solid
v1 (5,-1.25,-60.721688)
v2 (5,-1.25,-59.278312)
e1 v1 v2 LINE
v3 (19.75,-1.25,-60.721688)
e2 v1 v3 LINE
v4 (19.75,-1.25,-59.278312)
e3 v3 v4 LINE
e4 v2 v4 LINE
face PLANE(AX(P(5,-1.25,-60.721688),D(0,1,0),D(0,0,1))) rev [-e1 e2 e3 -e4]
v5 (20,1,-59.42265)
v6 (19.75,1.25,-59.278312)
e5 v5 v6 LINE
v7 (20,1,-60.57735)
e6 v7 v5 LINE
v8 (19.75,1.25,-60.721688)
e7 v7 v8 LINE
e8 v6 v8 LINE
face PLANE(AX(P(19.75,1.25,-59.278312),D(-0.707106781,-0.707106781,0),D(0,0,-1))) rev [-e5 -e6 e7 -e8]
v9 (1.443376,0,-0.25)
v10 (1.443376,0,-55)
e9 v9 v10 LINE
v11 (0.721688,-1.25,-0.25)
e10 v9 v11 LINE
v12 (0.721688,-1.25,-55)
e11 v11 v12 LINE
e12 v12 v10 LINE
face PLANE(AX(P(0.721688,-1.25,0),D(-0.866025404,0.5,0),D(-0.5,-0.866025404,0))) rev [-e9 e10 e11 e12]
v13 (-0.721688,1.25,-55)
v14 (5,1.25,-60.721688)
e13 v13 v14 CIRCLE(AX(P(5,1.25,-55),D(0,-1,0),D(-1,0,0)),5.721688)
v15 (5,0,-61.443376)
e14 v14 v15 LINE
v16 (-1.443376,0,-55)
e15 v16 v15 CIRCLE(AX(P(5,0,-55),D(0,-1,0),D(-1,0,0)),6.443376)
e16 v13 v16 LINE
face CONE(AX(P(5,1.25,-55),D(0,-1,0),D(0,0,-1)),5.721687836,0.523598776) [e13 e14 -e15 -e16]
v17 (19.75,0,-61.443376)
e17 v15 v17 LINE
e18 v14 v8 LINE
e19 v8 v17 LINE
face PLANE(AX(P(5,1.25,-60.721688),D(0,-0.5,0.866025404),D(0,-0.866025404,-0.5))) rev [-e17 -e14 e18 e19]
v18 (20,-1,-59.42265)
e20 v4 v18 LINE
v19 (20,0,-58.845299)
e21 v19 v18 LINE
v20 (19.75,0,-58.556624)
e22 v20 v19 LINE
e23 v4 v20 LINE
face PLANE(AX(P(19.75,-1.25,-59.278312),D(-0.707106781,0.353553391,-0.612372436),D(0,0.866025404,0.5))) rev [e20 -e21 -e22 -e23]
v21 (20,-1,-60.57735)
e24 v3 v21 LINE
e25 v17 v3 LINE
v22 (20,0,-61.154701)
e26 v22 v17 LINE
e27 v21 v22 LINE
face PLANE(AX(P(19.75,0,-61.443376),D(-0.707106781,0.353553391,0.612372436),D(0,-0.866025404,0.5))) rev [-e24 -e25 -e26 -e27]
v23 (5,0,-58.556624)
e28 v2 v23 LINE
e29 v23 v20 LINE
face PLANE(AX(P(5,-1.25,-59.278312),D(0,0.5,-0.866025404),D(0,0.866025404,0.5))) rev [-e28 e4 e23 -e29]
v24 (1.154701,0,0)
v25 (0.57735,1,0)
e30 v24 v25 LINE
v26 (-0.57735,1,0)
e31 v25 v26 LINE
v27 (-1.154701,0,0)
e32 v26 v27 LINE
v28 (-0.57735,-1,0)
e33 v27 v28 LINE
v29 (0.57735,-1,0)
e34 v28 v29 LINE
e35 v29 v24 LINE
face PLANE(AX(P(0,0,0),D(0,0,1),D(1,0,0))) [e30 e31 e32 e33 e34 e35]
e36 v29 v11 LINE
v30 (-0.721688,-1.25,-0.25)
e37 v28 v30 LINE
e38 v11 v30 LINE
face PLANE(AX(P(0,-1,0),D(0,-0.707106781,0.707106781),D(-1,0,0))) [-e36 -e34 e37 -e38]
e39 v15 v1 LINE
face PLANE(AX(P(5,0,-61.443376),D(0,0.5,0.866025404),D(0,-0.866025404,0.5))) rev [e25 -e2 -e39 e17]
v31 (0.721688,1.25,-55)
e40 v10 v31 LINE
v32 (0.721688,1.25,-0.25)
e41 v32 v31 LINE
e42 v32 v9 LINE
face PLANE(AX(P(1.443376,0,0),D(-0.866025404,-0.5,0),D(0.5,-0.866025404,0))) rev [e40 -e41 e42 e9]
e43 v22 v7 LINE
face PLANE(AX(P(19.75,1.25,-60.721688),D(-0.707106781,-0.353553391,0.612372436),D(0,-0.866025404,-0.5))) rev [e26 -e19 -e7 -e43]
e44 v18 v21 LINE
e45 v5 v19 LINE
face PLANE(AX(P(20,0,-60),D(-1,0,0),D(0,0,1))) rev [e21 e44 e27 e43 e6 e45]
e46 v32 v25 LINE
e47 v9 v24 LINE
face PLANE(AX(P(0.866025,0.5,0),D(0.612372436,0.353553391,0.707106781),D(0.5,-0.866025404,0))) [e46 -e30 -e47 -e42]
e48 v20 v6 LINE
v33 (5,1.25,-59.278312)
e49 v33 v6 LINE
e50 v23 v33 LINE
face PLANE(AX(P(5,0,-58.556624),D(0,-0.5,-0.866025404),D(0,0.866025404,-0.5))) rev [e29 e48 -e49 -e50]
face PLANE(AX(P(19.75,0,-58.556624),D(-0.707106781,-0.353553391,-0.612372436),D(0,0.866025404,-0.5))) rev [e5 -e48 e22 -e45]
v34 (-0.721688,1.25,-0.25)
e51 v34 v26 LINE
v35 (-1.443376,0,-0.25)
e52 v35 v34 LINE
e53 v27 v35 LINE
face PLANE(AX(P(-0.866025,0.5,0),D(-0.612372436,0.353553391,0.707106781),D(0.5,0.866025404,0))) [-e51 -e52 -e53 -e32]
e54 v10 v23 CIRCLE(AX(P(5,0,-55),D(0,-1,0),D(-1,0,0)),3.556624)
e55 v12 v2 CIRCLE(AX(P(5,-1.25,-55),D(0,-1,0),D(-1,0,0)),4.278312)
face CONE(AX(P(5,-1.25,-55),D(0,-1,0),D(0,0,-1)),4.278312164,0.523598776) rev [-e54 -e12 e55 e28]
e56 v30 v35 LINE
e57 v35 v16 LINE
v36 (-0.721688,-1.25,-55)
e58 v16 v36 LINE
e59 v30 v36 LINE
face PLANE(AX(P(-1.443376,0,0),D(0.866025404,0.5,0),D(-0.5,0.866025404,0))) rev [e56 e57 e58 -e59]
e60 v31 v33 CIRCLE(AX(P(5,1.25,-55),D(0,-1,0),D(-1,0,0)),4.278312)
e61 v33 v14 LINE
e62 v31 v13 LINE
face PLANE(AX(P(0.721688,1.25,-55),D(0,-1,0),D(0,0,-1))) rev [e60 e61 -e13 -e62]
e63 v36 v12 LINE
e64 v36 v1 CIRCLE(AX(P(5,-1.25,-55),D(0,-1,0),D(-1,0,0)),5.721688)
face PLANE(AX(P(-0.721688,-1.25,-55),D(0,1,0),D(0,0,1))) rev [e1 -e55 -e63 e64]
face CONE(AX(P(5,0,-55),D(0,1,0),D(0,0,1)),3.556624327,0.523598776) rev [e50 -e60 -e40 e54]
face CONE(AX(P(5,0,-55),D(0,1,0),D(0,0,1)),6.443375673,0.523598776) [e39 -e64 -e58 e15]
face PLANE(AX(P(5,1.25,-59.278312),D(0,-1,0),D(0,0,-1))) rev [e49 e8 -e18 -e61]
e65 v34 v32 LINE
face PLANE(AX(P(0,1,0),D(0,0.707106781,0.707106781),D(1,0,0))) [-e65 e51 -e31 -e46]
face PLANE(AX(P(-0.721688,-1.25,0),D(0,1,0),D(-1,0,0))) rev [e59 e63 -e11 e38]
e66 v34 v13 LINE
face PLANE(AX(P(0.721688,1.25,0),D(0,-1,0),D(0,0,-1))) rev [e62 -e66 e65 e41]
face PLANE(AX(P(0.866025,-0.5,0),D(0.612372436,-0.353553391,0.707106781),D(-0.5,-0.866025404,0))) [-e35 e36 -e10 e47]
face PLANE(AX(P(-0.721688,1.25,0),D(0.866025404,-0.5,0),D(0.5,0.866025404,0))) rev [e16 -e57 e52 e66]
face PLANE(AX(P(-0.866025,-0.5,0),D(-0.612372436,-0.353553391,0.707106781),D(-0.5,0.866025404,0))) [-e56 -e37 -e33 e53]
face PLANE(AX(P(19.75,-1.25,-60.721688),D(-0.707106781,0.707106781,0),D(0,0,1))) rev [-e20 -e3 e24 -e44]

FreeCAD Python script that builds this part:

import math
import FreeCAD as App
import Part
import Sketcher
from FreeCAD import Vector
Q = App.Units.Quantity


def edges_at(feature, points):
    """Names of the edges that pass closest to the given points."""
    edges = feature.Shape.Edges
    near = lambda p: min(range(len(edges)), key=lambda i: edges[i].distToShape(Part.Vertex(*p))[0])
    return sorted({f"Edge{near(p) + 1}" for p in points})


def add_polygon(sketch, points):
    """Adds a closed chain of lines whose ends are joined by coincident constraints."""
    first, n = sketch.GeometryCount, len(points)
    for a, b in zip(points, points[1:] + points[:1]):
        sketch.addGeometry(Part.LineSegment(App.Vector(*a, 0), App.Vector(*b, 0)), False)
    for i in range(n):
        sketch.addConstraint(Sketcher.Constraint("Coincident", first + i, 2, first + (i + 1) % n, 1))

doc = App.newDocument("Part")
body = doc.addObject("PartDesign::Body", "Body")

sketch1 = body.newObject("Sketcher::SketchObject", "Sketch")
sketch1.AttachmentSupport = (doc.getObject("XY_Plane"), [""])
sketch1.MapMode = "FlatFace"
add_polygon(sketch1, [(0.7, 1.2), (-0.7, 1.2), (-1.4, 0), (-0.7, -1.2), (0.7, -1.2), (1.4, 0)])
sketch1.addConstraint([
    Sketcher.Constraint("Horizontal", 0),
    Sketcher.Constraint("Horizontal", 3),
    Sketcher.Constraint("Symmetric", 0, 2, 3, 2, -1, 1),
    Sketcher.Constraint("Symmetric", 1, 2, 4, 2, -1, 1),
    Sketcher.Constraint("PointOnObject", 1, 2, -1),
    Sketcher.Constraint("Parallel", 2, 5),
    Sketcher.Constraint("Vertical", 0, 2, 2, 2),
    Sketcher.Constraint("Angle", 1, Q("-120 deg")),
    Sketcher.Constraint("DistanceY", 2, 2, 0, 2, 2.5),
    Sketcher.Constraint("DistanceX", 0, 2, 0, 1, 1.443376),
])

sketch2 = body.newObject("Sketcher::SketchObject", "Sketch001")
sketch2.AttachmentSupport = (doc.getObject("XZ_Plane"), [""])
sketch2.MapMode = "FlatFace"
sketch2.addGeometry([
    Part.LineSegment(Vector(0, 0, 0), Vector(0, -55, 0)),
    Part.ArcOfCircle(Part.Circle(Vector(5, -55, 0), Vector(0, 0, 1), 5), math.radians(180), math.radians(270)),
    Part.LineSegment(Vector(5, -60, 0), Vector(20, -60, 0)),
], False)
sketch2.addConstraint([
    Sketcher.Constraint("Tangent", 0, 2, 1, 1),
    Sketcher.Constraint("Tangent", 1, 2, 2, 1),
    Sketcher.Constraint("Vertical", 0),
    Sketcher.Constraint("Horizontal", 2),
    Sketcher.Constraint("Coincident", 0, 1, -1, 1),
    Sketcher.Constraint("Radius", 1, 5.0),
    Sketcher.Constraint("DistanceX", 2, 1, 2, 2, 15.0),
    Sketcher.Constraint("DistanceY", 0, 2, 0, 1, 55.0),
])
doc.recompute()

additivepipe = body.newObject("PartDesign::AdditivePipe", "AdditivePipe")
additivepipe.Profile = sketch1
additivepipe.Spine = (sketch2, ["Edge1", "Edge2", "Edge3"])
doc.recompute()

chamfer = body.newObject("PartDesign::Chamfer", "Chamfer")
chamfer.Base = (additivepipe, edges_at(additivepipe, [
    (20, -1.25, -60),
    (20, -0.625, -58.917),
    (20, 0.625, -58.917),
    (20, 1.25, -60),
    (20, 0.625, -61.083),
    (20, -0.625, -61.083),
]))
chamfer.Size = 0.25
doc.recompute()

chamfer2 = body.newObject("PartDesign::Chamfer", "Chamfer001")
chamfer2.Base = (chamfer, edges_at(chamfer, [
    (0, 1.25, 0),
    (-1.083, 0.625, 0),
    (-1.083, -0.625, 0),
    (0, -1.25, 0),
    (1.083, -0.625, 0),
    (1.083, 0.625, 0),
]))
chamfer2.Size = 0.25

doc.recompute()
